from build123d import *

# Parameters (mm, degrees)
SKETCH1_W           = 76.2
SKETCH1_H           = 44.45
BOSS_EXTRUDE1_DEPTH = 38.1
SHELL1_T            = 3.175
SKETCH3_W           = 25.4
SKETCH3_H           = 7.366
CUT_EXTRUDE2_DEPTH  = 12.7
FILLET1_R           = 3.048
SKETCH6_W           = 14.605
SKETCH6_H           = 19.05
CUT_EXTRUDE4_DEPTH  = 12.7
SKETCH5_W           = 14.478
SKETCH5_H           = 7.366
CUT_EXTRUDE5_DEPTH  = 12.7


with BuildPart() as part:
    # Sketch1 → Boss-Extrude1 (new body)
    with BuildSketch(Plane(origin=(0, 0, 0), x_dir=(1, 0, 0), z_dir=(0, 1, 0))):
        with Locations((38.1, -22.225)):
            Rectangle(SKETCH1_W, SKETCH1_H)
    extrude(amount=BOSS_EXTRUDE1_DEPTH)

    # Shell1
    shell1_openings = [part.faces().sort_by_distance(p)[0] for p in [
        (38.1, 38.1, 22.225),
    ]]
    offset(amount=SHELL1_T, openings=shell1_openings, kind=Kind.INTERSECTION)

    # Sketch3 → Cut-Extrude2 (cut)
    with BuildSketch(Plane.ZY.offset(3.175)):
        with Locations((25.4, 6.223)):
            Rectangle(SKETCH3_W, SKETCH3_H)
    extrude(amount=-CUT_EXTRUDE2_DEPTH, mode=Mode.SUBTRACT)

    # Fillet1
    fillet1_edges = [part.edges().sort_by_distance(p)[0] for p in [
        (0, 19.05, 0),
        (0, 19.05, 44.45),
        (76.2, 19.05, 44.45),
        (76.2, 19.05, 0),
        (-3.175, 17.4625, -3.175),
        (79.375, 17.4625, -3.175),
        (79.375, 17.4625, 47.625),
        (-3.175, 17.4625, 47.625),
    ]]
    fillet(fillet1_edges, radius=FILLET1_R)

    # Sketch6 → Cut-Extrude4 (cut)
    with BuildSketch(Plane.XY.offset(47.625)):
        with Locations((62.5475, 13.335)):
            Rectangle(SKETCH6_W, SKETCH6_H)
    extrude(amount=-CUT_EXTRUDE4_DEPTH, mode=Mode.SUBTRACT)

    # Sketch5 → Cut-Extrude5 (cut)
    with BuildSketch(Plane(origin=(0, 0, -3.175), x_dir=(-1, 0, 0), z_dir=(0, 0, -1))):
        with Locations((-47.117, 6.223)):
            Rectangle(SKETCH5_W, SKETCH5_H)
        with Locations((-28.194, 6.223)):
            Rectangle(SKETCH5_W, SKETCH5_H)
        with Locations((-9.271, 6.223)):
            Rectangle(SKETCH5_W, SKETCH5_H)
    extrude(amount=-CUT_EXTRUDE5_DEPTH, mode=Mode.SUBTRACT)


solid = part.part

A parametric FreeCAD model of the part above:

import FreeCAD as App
import Part
import Sketcher
Q = App.Units.Quantity


def edges_at(feature, points):
    """Names of the edges that pass closest to the given points."""
    edges = feature.Shape.Edges
    near = lambda p: min(range(len(edges)), key=lambda i: edges[i].distToShape(Part.Vertex(*p))[0])
    return sorted({f"Edge{near(p) + 1}" for p in points})


def faces_at(feature, points):
    """Names of the faces that lie closest to the given points."""
    faces = feature.Shape.Faces
    near = lambda p: min(range(len(faces)), key=lambda i: faces[i].distToShape(Part.Vertex(*p))[0])
    return sorted({f"Face{near(p) + 1}" for p in points})


def add_polygon(sketch, points):
    """Adds a closed chain of lines whose ends are joined by coincident constraints."""
    first, n = sketch.GeometryCount, len(points)
    for a, b in zip(points, points[1:] + points[:1]):
        sketch.addGeometry(Part.LineSegment(App.Vector(*a, 0), App.Vector(*b, 0)), False)
    for i in range(n):
        sketch.addConstraint(Sketcher.Constraint("Coincident", first + i, 2, first + (i + 1) % n, 1))

doc = App.newDocument("Part")
params = doc.addObject("Spreadsheet::Sheet", "Params")
for row, (alias, value) in enumerate([
    ("sketch1_width", "3 in"),
    ("sketch1_height", "1.75 in"),
    ("pad1_length", "1.5 in"),
    ("thickness_wall", "0.125 in"),
    ("sketch2_height", "1 in"),
    ("sketch2_width", "0.29 in"),
    ("pocket1_length", "0.5 in"),
    ("fillet_radius", "0.12 in"),
    ("sketch3_height", "0.75 in"),
    ("sketch3_width", "0.575 in"),
    ("pocket2_length", "0.5 in"),
    ("sketch4_width", "0.57 in"),
    ("sketch4_height", "0.29 in"),
    ("pocket3_length", "0.5 in"),
], start=1):
    params.set(f"A{row}", alias)
    params.set(f"B{row}", "=" + value)
    params.setAlias(f"B{row}", alias)

body = doc.addObject("PartDesign::Body", "Body")

# Sketch on XZ plane
sketch1 = body.newObject("Sketcher::SketchObject", "Sketch")
sketch1.AttachmentSupport = (doc.getObject("XZ_Plane"), [""])
sketch1.MapMode = "FlatFace"
add_polygon(sketch1, [(0, 0), (0, 44), (76, 44), (76, 0)])  # lines 0-3
sketch1.addConstraint([
    Sketcher.Constraint("Vertical", 0),
    Sketcher.Constraint("Horizontal", 1),
    Sketcher.Constraint("Vertical", 2),
    Sketcher.Constraint("Horizontal", 3),
    Sketcher.Constraint("Coincident", 3, 2, -1, 1),
    Sketcher.Constraint("DistanceX", 1, 1, 1, 2, Q("3 in")),
    Sketcher.Constraint("DistanceY", 0, 1, 0, 2, Q("1.75 in")),
])
sketch1.setExpression("Constraints[9]", "Params.sketch1_width")
sketch1.setExpression("Constraints[10]", "Params.sketch1_height")
pad1 = body.newObject("PartDesign::Pad", "Pad")
pad1.Profile = sketch1
pad1.setExpression("Length", "Params.pad1_length")
pad1.Reversed = True
doc.recompute()

thickness = body.newObject("PartDesign::Thickness", "Thickness")
thickness.Base = (pad1, faces_at(pad1, [(38.1, 38.1, 22.225)]))
thickness.setExpression("Value", "Params.thickness_wall")
thickness.Reversed = False
thickness.Join = "Intersection"

# Sketch on YZ plane
sketch2 = body.newObject("Sketcher::SketchObject", "Sketch001")
sketch2.AttachmentSupport = (doc.getObject("YZ_Plane"), [""])
sketch2.MapMode = "FlatFace"
sketch2.AttachmentOffset = App.Placement(App.Vector(0, 0, -0.125 * 25.4), App.Rotation())
add_polygon(sketch2, [(10, 13), (3, 13), (3, 38), (10, 38)])  # lines 0-3
sketch2.addConstraint([
    Sketcher.Constraint("Horizontal", 0),
    Sketcher.Constraint("Vertical", 1),
    Sketcher.Constraint("Horizontal", 2),
    Sketcher.Constraint("Vertical", 3),
    Sketcher.Constraint("DistanceY", 1, 1, 1, 2, Q("1 in")),
    Sketcher.Constraint("DistanceX", 0, 2, 0, 1, Q("0.29 in")),
    Sketcher.Constraint("DistanceX", -1, 1, 0, 2, Q("0.1 in")),
    Sketcher.Constraint("DistanceY", -1, 1, 0, 2, Q("0.5 in")),
])
sketch2.setExpression("Constraints[8]", "Params.sketch2_height")
sketch2.setExpression("Constraints[9]", "Params.sketch2_width")
pocket1 = body.newObject("PartDesign::Pocket", "Pocket")
pocket1.Profile = sketch2
pocket1.setExpression("Length", "Params.pocket1_length")
pocket1.Reversed = True
doc.recompute()

fillet = body.newObject("PartDesign::Fillet", "Fillet")
fillet.Base = (pocket1, edges_at(pocket1, [
    (0, 19.05, 0),
    (0, 19.05, 44.45),
    (76.2, 19.05, 44.45),
    (76.2, 19.05, 0),
    (-3.175, 17.462, -3.175),
    (79.375, 17.462, -3.175),
    (79.375, 17.462, 47.625),
    (-3.175, 17.462, 47.625),
]))
fillet.setExpression("Radius", "Params.fillet_radius")

# Sketch on XY plane
sketch3 = body.newObject("Sketcher::SketchObject", "Sketch002")
sketch3.AttachmentSupport = (doc.getObject("XY_Plane"), [""])
sketch3.MapMode = "FlatFace"
sketch3.AttachmentOffset = App.Placement(App.Vector(0, 0, 1.875 * 25.4), App.Rotation())
add_polygon(sketch3, [(55, 23), (55, 4), (70, 4), (70, 23)])  # lines 0-3
sketch3.addConstraint([
    Sketcher.Constraint("Vertical", 0),
    Sketcher.Constraint("Horizontal", 1),
    Sketcher.Constraint("Vertical", 2),
    Sketcher.Constraint("Horizontal", 3),
    Sketcher.Constraint("DistanceY", 0, 2, 0, 1, Q("0.75 in")),
    Sketcher.Constraint("DistanceY", -1, 1, 2, 2, Q("0.9 in")),
    Sketcher.Constraint("DistanceX", 1, 1, 1, 2, Q("0.575 in")),
    Sketcher.Constraint("DistanceX", -1, 1, 1, 2, Q("2.75 in")),
])
sketch3.setExpression("Constraints[8]", "Params.sketch3_height")
sketch3.setExpression("Constraints[10]", "Params.sketch3_width")
pocket2 = body.newObject("PartDesign::Pocket", "Pocket001")
pocket2.Profile = sketch3
pocket2.setExpression("Length", "Params.pocket2_length")

# Sketch on XY plane
sketch4 = body.newObject("Sketcher::SketchObject", "Sketch003")
sketch4.AttachmentSupport = (doc.getObject("XY_Plane"), [""])
sketch4.MapMode = "FlatFace"
sketch4.AttachmentOffset = App.Placement(App.Vector(0, 0, -0.125 * 25.4), App.Rotation())
add_polygon(sketch4, [(54, 10), (54, 3), (40, 3), (40, 10)])  # lines 0-3
add_polygon(sketch4, [(35, 10), (35, 3), (21, 3), (21, 10)])  # lines 4-7
add_polygon(sketch4, [(17, 10), (17, 3), (2, 3), (2, 10)])  # lines 8-11
sketch4.addConstraint([
    Sketcher.Constraint("Vertical", 0),
    Sketcher.Constraint("Horizontal", 1),
    Sketcher.Constraint("Vertical", 2),
    Sketcher.Constraint("Horizontal", 3),
    Sketcher.Constraint("Vertical", 4),
    Sketcher.Constraint("Horizontal", 5),
    Sketcher.Constraint("Vertical", 6),
    Sketcher.Constraint("Horizontal", 7),
    Sketcher.Constraint("Vertical", 8),
    Sketcher.Constraint("Horizontal", 9),
    Sketcher.Constraint("Vertical", 10),
    Sketcher.Constraint("Horizontal", 11),
    Sketcher.Constraint("Horizontal", 1, 2, 4, 2),
    Sketcher.Constraint("Horizontal", 3, 2, 6, 2),
    Sketcher.Constraint("Horizontal", 5, 2, 8, 2),
    Sketcher.Constraint("Horizontal", 7, 2, 10, 2),
    Sketcher.Constraint("Equal", 3, 5),
    Sketcher.Constraint("Equal", 7, 9),
    Sketcher.Constraint("DistanceX", 1, 2, 1, 1, Q("0.57 in")),
    Sketcher.Constraint("DistanceY", 0, 2, 0, 1, Q("0.29 in")),
    Sketcher.Constraint("DistanceY", -1, 1, 0, 2, Q("0.1 in")),
    Sketcher.Constraint("DistanceX", -1, 1, 0, 2, Q("2.14 in")),
    Sketcher.Constraint("DistanceX", -1, 1, 8, 2, Q("0.65 in")),
    Sketcher.Constraint("DistanceX", -1, 1, 4, 2, Q("1.395 in")),
])
sketch4.setExpression("Constraints[30]", "Params.sketch4_width")
sketch4.setExpression("Constraints[31]", "Params.sketch4_height")
pocket3 = body.newObject("PartDesign::Pocket", "Pocket002")
pocket3.Profile = sketch4
pocket3.setExpression("Length", "Params.pocket3_length")
pocket3.Reversed = True

doc.recompute()
